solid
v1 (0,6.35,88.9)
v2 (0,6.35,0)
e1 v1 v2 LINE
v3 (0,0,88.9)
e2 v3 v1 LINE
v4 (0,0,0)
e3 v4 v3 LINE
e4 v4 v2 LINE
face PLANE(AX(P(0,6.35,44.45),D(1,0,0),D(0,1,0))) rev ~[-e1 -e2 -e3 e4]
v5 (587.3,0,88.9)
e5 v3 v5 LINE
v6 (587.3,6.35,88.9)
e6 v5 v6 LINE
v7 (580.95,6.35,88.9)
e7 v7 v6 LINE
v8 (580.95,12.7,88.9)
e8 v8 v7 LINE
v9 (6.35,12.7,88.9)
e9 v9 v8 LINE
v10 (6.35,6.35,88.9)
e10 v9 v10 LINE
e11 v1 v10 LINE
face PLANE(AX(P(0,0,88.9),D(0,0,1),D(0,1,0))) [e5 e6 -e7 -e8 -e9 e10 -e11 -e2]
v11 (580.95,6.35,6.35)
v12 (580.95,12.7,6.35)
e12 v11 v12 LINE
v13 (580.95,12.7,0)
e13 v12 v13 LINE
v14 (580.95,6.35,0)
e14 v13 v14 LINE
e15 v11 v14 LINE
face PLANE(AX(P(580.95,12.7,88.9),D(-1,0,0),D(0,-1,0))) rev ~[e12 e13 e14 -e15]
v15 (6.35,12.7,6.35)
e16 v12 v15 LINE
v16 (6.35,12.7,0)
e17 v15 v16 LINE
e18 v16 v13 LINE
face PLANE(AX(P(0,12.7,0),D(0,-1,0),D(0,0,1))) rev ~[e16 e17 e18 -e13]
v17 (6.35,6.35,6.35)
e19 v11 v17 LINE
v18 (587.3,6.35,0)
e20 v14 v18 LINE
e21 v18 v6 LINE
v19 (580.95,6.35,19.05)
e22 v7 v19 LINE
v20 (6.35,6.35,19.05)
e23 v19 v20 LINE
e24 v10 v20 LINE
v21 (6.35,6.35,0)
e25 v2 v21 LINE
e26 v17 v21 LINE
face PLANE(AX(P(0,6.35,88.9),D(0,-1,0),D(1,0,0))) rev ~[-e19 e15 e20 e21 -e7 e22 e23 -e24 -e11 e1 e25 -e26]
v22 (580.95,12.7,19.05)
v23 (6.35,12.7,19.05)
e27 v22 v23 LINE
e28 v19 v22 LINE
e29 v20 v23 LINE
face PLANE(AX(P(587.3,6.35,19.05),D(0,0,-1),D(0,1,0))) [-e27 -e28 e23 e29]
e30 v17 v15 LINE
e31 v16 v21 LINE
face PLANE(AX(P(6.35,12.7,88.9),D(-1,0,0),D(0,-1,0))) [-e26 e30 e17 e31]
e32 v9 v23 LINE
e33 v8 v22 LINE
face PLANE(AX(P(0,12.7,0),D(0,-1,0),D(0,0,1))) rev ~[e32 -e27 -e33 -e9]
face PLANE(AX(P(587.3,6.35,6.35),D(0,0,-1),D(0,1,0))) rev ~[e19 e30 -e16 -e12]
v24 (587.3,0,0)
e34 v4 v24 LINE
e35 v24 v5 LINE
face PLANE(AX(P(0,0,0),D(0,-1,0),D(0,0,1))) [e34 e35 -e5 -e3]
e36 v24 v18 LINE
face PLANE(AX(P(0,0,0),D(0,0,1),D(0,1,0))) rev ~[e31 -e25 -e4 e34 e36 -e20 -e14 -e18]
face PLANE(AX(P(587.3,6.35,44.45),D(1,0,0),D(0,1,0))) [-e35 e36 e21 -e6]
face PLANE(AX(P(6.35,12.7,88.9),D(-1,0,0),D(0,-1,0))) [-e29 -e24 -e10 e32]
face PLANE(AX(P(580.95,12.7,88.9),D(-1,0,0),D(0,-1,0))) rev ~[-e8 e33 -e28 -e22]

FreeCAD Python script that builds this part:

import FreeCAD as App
import Part
import Sketcher

V = App.Vector
Q = App.Units.Quantity

doc = App.newDocument("Part")
body = doc.addObject("PartDesign::Body", "Body")

# Sketch on YZ plane
sketch1 = body.newObject("Sketcher::SketchObject", "Sketch")
sketch1.AttachmentSupport = (doc.getObject("YZ_Plane"), [""])
sketch1.MapMode = "FlatFace"
sketch1.addGeometry(Part.LineSegment(V(0, 89, 0), V(0, 0, 0)), False)
sketch1.addGeometry(Part.LineSegment(V(0, 0, 0), V(13, 0, 0)), False)
sketch1.addGeometry(Part.LineSegment(V(13, 0, 0), V(13, 89, 0)), False)
sketch1.addGeometry(Part.LineSegment(V(13, 89, 0), V(0, 89, 0)), False)
sketch1.addConstraint(Sketcher.Constraint("Coincident", 0, 2, 1, 1))
sketch1.addConstraint(Sketcher.Constraint("Coincident", 1, 2, 2, 1))
sketch1.addConstraint(Sketcher.Constraint("Coincident", 2, 2, 3, 1))
sketch1.addConstraint(Sketcher.Constraint("Coincident", 3, 2, 0, 1))
sketch1.addConstraint(Sketcher.Constraint("Vertical", 0))
sketch1.addConstraint(Sketcher.Constraint("Horizontal", 1))
sketch1.addConstraint(Sketcher.Constraint("Vertical", 2))
sketch1.addConstraint(Sketcher.Constraint("Horizontal", 3))
sketch1.addConstraint(Sketcher.Constraint("Coincident", 0, 2, -1, 1))
sketch1.addConstraint(Sketcher.Constraint("DistanceX", 1, 1, 1, 2, Q("0.5 in")))
sketch1.addConstraint(Sketcher.Constraint("DistanceY", 0, 2, 0, 1, Q("3.5 in")))
pad1 = body.newObject("PartDesign::Pad", "Pad")
pad1.Profile = sketch1
pad1.Length = 587.3

# Sketch on YZ plane
sketch2 = body.newObject("Sketcher::SketchObject", "Sketch001")
sketch2.AttachmentSupport = (doc.getObject("YZ_Plane"), [""])
sketch2.MapMode = "FlatFace"
sketch2.AttachmentOffset = App.Placement(V(0, 0, 587.3), App.Rotation())
sketch2.addGeometry(Part.LineSegment(V(6, 19, 0), V(6, 6, 0)), False)
sketch2.addGeometry(Part.LineSegment(V(6, 6, 0), V(13, 6, 0)), False)
sketch2.addGeometry(Part.LineSegment(V(13, 6, 0), V(13, 19, 0)), False)
sketch2.addGeometry(Part.LineSegment(V(13, 19, 0), V(6, 19, 0)), False)
sketch2.addConstraint(Sketcher.Constraint("Coincident", 0, 2, 1, 1))
sketch2.addConstraint(Sketcher.Constraint("Coincident", 1, 2, 2, 1))
sketch2.addConstraint(Sketcher.Constraint("Coincident", 2, 2, 3, 1))
sketch2.addConstraint(Sketcher.Constraint("Coincident", 3, 2, 0, 1))
sketch2.addConstraint(Sketcher.Constraint("Vertical", 0))
sketch2.addConstraint(Sketcher.Constraint("Horizontal", 1))
sketch2.addConstraint(Sketcher.Constraint("Vertical", 2))
sketch2.addConstraint(Sketcher.Constraint("Horizontal", 3))
sketch2.addConstraint(Sketcher.Constraint("DistanceY", 0, 2, 0, 1, Q("0.5 in")))
sketch2.addConstraint(Sketcher.Constraint("DistanceX", 1, 1, 1, 2, Q("0.25 in")))
sketch2.addConstraint(Sketcher.Constraint("DistanceX", -1, 1, 1, 2, Q("0.5 in")))
sketch2.addConstraint(Sketcher.Constraint("DistanceY", -1, 1, 0, 2, Q("0.25 in")))
pocket1 = body.newObject("PartDesign::Pocket", "Pocket")
pocket1.Profile = sketch2
pocket1.Type = "ThroughAll"

# Sketch on XY plane
sketch3 = body.newObject("Sketcher::SketchObject", "Sketch002")
sketch3.AttachmentSupport = (doc.getObject("XY_Plane"), [""])
sketch3.MapMode = "FlatFace"
sketch3.AttachmentOffset = App.Placement(V(0, 0, 3.5 * 25.4), App.Rotation())
sketch3.addGeometry(Part.LineSegment(V(587, 13, 0), V(581, 13, 0)), False)
sketch3.addGeometry(Part.LineSegment(V(581, 13, 0), V(581, 6, 0)), False)
sketch3.addGeometry(Part.LineSegment(V(581, 6, 0), V(587, 6, 0)), False)
sketch3.addGeometry(Part.LineSegment(V(587, 6, 0), V(587, 13, 0)), False)
sketch3.addGeometry(Part.LineSegment(V(6, 13, 0), V(0, 13, 0)), False)
sketch3.addGeometry(Part.LineSegment(V(0, 13, 0), V(0, 6, 0)), False)
sketch3.addGeometry(Part.LineSegment(V(0, 6, 0), V(6, 6, 0)), False)
sketch3.addGeometry(Part.LineSegment(V(6, 6, 0), V(6, 13, 0)), False)
sketch3.addConstraint(Sketcher.Constraint("Coincident", 0, 2, 1, 1))
sketch3.addConstraint(Sketcher.Constraint("Coincident", 1, 2, 2, 1))
sketch3.addConstraint(Sketcher.Constraint("Coincident", 2, 2, 3, 1))
sketch3.addConstraint(Sketcher.Constraint("Coincident", 3, 2, 0, 1))
sketch3.addConstraint(Sketcher.Constraint("Coincident", 4, 2, 5, 1))
sketch3.addConstraint(Sketcher.Constraint("Coincident", 5, 2, 6, 1))
sketch3.addConstraint(Sketcher.Constraint("Coincident", 6, 2, 7, 1))
sketch3.addConstraint(Sketcher.Constraint("Coincident", 7, 2, 4, 1))
sketch3.addConstraint(Sketcher.Constraint("Horizontal", 0))
sketch3.addConstraint(Sketcher.Constraint("Vertical", 1))
sketch3.addConstraint(Sketcher.Constraint("Horizontal", 2))
sketch3.addConstraint(Sketcher.Constraint("Vertical", 3))
sketch3.addConstraint(Sketcher.Constraint("Horizontal", 4))
sketch3.addConstraint(Sketcher.Constraint("Vertical", 5))
sketch3.addConstraint(Sketcher.Constraint("Horizontal", 6))
sketch3.addConstraint(Sketcher.Constraint("Vertical", 7))
sketch3.addConstraint(Sketcher.Constraint("PointOnObject", 4, 2, -2))
sketch3.addConstraint(Sketcher.Constraint("Horizontal", 3, 2, 4, 2))
sketch3.addConstraint(Sketcher.Constraint("Horizontal", 2, 2, 5, 2))
sketch3.addConstraint(Sketcher.Constraint("Equal", 2, 4))
sketch3.addConstraint(Sketcher.Constraint("Equal", 6, 1))
sketch3.addConstraint(Sketcher.Constraint("DistanceX", 0, 2, 0, 1, Q("0.25 in")))
sketch3.addConstraint(Sketcher.Constraint("DistanceY", -1, 1, 0, 2, Q("0.5 in")))
sketch3.addConstraint(Sketcher.Constraint("DistanceX", -1, 1, 0, 2, 580.95))
pocket2 = body.newObject("PartDesign::Pocket", "Pocket001")
pocket2.Profile = sketch3
pocket2.Type = "ThroughAll"

doc.recompute()
